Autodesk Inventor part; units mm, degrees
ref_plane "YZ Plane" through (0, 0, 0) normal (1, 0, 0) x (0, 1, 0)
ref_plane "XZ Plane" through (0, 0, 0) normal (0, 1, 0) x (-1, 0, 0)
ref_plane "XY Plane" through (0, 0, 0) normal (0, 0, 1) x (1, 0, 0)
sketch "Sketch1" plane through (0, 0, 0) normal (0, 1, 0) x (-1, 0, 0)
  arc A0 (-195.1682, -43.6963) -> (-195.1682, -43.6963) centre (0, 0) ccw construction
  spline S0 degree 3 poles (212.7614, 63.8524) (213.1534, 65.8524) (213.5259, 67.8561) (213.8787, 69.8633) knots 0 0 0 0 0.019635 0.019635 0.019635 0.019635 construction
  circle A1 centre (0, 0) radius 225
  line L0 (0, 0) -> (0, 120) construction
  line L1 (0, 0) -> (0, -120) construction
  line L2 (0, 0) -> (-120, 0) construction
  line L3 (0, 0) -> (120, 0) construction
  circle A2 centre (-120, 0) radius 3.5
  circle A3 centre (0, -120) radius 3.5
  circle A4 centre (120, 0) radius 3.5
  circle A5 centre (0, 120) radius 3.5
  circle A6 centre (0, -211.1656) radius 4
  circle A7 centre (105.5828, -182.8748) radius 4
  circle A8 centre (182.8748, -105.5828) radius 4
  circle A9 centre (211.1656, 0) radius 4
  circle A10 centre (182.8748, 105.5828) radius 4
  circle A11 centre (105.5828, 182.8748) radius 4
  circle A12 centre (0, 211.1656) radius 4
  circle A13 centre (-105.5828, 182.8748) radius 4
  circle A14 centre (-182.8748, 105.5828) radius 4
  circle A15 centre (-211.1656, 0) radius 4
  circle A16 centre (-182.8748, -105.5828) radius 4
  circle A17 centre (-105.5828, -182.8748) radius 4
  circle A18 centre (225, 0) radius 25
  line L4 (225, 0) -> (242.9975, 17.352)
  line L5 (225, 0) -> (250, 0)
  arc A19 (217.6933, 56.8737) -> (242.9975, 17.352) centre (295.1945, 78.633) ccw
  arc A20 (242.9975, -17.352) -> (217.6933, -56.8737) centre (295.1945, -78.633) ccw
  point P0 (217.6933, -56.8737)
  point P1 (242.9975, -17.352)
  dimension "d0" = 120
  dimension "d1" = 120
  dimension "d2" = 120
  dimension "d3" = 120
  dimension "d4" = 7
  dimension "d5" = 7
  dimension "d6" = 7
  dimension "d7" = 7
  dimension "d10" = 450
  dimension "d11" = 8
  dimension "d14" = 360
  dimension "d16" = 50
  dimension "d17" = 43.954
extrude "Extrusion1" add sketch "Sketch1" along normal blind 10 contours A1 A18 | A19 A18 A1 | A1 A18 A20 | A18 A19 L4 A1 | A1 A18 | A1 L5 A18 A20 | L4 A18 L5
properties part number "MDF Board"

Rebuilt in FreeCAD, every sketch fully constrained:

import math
import FreeCAD as App
import Part
import Sketcher
from FreeCAD import Vector

doc = App.newDocument("Part")
body = doc.addObject("PartDesign::Body", "Body")

sketch1 = body.newObject("Sketcher::SketchObject", "Sketch")
sketch1.AttachmentSupport = (doc.getObject("XZ_Plane"), [""])
sketch1.MapMode = "FlatFace"
sketch1.addGeometry([
    Part.ArcOfCircle(Part.Circle(Vector(0, 0, 0), Vector(0, 0, 1), 225), math.radians(-165.358393), math.radians(165.358393)),
    Part.ArcOfCircle(Part.Circle(Vector(-295.195337, -78.633731, 0), Vector(0, 0, 1), 80.498849), math.radians(15.683), math.radians(49.576694)),
    Part.ArcOfCircle(Part.Circle(Vector(-225, 0, 0), Vector(0, 0, 1), 25), math.radians(136.046134), math.radians(223.953866)),
    Part.ArcOfCircle(Part.Circle(Vector(-295.193486, 78.632545, 0), Vector(0, 0, 1), 80.496746), math.radians(-49.577151), math.radians(-15.682544)),
    Part.Circle(Vector(105.5828, -182.8748, 0), Vector(0, 0, 1), 4),
    Part.Circle(Vector(0, -211.1656, 0), Vector(0, 0, 1), 4),
    Part.Circle(Vector(0, -120, 0), Vector(0, 0, 1), 3.5),
    Part.Circle(Vector(182.8748, -105.5828, 0), Vector(0, 0, 1), 4),
    Part.Circle(Vector(-105.5828, -182.8748, 0), Vector(0, 0, 1), 4),
    Part.Circle(Vector(-182.8748, -105.5828, 0), Vector(0, 0, 1), 4),
    Part.Circle(Vector(211.1656, 0, 0), Vector(0, 0, 1), 4),
    Part.Circle(Vector(120, 0, 0), Vector(0, 0, 1), 3.5),
    Part.Circle(Vector(182.8748, 105.5828, 0), Vector(0, 0, 1), 4),
    Part.Circle(Vector(0, 120, 0), Vector(0, 0, 1), 3.5),
    Part.Circle(Vector(105.5828, 182.8748, 0), Vector(0, 0, 1), 4),
    Part.Circle(Vector(0, 211.1656, 0), Vector(0, 0, 1), 4),
    Part.Circle(Vector(-120, 0, 0), Vector(0, 0, 1), 3.5),
    Part.Circle(Vector(-182.8748, 105.5828, 0), Vector(0, 0, 1), 4),
    Part.Circle(Vector(-105.5828, 182.8748, 0), Vector(0, 0, 1), 4),
    Part.Circle(Vector(-211.1656, 0, 0), Vector(0, 0, 1), 4),
], False)
sketch1.addConstraint([
    Sketcher.Constraint("Coincident", 0, 1, 1, 1),
    Sketcher.Constraint("Coincident", 1, 2, 2, 2),
    Sketcher.Constraint("Coincident", 2, 1, 3, 1),
    Sketcher.Constraint("Coincident", 3, 2, 0, 2),
    Sketcher.Constraint("Coincident", 0, 3, -1, 1),
    Sketcher.Constraint("Equal", 4, 5),
    Sketcher.Constraint("Equal", 5, 7),
    Sketcher.Constraint("Equal", 7, 8),
    Sketcher.Constraint("Equal", 8, 9),
    Sketcher.Constraint("Equal", 9, 10),
    Sketcher.Constraint("Equal", 6, 11),
    Sketcher.Constraint("Equal", 10, 12),
    Sketcher.Constraint("Equal", 11, 13),
    Sketcher.Constraint("Equal", 12, 14),
    Sketcher.Constraint("Equal", 14, 15),
    Sketcher.Constraint("Equal", 13, 16),
    Sketcher.Constraint("Equal", 15, 17),
    Sketcher.Constraint("Equal", 17, 18),
    Sketcher.Constraint("Equal", 18, 19),
    Sketcher.Constraint("Symmetric", 9, 3, 12, 3, -1, 1),
    Sketcher.Constraint("Symmetric", 6, 3, 13, 3, -1, 1),
    Sketcher.Constraint("Symmetric", 8, 3, 14, 3, -1, 1),
    Sketcher.Constraint("Symmetric", 5, 3, 15, 3, -1, 1),
    Sketcher.Constraint("Symmetric", 11, 3, 16, 3, -1, 1),
    Sketcher.Constraint("Symmetric", 7, 3, 17, 3, -1, 1),
    Sketcher.Constraint("Symmetric", 4, 3, 18, 3, -1, 1),
    Sketcher.Constraint("Symmetric", 10, 3, 19, 3, -1, 1),
    Sketcher.Constraint("Symmetric", 4, 3, 8, 3, -2),
    Sketcher.Constraint("Symmetric", 7, 3, 9, 3, -2),
    Sketcher.Constraint("Symmetric", 1, 2, 2, 1, -1),
    Sketcher.Constraint("PointOnObject", 5, 3, -2),
    Sketcher.Constraint("PointOnObject", 6, 3, -2),
    Sketcher.Constraint("PointOnObject", 10, 3, -1),
    Sketcher.Constraint("PointOnObject", 11, 3, -1),
    Sketcher.Constraint("Vertical", 0, 1, 3, 2),
    Sketcher.Constraint("Diameter", 4, 8.0),
    Sketcher.Constraint("Diameter", 6, 7.0),
    Sketcher.Constraint("Radius", 0, 225.0),
    Sketcher.Constraint("Radius", 2, 25.0),
    Sketcher.Constraint("DistanceY", 6, 3, -1, 1, 120.0),
    Sketcher.Constraint("DistanceX", -1, 1, 11, 3, 120.0),
    Sketcher.Constraint("DistanceX", 2, 3, -1, 1, 225.0),
    Sketcher.Constraint("Radius", 1, 80.4988),
    Sketcher.Constraint("Radius", 3, 80.4967),
    Sketcher.Constraint("DistanceY", 1, 3, 0, 1, 21.76),
    Sketcher.Constraint("DistanceY", 1, 2, -1, 1, 17.352),
    Sketcher.Constraint("DistanceY", 4, 3, 1, 3, 104.241),
    Sketcher.Constraint("DistanceX", 4, 3, 7, 3, 77.292),
    Sketcher.Constraint("DistanceY", 4, 3, 7, 3, 77.292),
    Sketcher.Constraint("DistanceX", 3, 3, 19, 3, 84.028),
    Sketcher.Constraint("DistanceX", -1, 1, 4, 3, 105.5828),
    Sketcher.Constraint("DistanceY", 5, 3, -1, 1, 211.1656),
])
pad1 = body.newObject("PartDesign::Pad", "Pad")
pad1.Profile = sketch1
pad1.Length = 10
pad1.Reversed = True

doc.recompute()
